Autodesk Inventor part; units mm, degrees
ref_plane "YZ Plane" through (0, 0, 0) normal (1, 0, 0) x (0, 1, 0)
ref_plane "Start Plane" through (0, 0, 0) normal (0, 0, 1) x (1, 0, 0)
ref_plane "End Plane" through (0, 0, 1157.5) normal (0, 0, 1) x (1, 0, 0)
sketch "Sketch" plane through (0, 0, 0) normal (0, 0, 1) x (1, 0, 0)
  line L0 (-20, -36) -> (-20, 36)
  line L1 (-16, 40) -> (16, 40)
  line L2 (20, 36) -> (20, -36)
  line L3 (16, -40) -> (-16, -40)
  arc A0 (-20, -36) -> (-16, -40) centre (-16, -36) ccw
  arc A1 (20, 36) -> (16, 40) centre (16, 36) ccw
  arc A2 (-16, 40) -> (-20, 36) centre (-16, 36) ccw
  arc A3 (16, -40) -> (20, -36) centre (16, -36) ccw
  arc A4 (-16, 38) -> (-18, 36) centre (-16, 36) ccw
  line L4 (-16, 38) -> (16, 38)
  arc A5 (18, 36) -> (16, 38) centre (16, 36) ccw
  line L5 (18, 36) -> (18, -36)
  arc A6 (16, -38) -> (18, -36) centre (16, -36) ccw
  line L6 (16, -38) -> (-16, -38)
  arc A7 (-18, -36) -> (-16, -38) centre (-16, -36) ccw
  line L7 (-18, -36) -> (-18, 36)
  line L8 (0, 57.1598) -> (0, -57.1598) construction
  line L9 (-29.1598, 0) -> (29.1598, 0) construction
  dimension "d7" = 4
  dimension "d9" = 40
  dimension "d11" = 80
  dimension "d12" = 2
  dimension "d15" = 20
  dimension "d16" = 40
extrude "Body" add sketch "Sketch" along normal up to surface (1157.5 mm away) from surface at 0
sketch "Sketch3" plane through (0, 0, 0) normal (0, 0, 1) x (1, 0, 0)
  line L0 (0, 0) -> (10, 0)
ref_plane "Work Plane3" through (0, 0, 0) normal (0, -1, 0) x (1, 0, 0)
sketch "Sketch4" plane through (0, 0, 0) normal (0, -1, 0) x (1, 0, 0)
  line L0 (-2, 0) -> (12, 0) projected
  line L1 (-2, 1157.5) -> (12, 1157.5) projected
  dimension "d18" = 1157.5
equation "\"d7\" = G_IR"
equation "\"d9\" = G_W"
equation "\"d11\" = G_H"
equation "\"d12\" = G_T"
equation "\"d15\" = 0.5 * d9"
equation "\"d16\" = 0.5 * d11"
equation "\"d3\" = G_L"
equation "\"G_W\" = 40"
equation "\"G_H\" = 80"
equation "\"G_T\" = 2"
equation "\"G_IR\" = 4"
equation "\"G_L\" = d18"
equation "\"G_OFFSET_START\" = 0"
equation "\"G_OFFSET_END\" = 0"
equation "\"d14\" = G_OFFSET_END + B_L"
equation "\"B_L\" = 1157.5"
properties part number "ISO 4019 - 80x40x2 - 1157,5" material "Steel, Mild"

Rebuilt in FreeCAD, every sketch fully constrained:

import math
import FreeCAD as App
import Part
import Sketcher
from FreeCAD import Vector
Q = App.Units.Quantity

doc = App.newDocument("Part")
params = doc.addObject("Spreadsheet::Sheet", "Params")
for row, (alias, value) in enumerate([
    ("sketch1_radius", "4 mm"),
    ("sketch1_radius2", "2 mm"),
    ("pad1_length", "1157.5 mm"),
], start=1):
    params.set(f"A{row}", alias)
    params.set(f"B{row}", "=" + value)
    params.setAlias(f"B{row}", alias)

body = doc.addObject("PartDesign::Body", "Body")

sketch1 = body.newObject("Sketcher::SketchObject", "Sketch")
sketch1.AttachmentSupport = (doc.getObject("XY_Plane"), [""])
sketch1.MapMode = "FlatFace"
sketch1.addGeometry([
    Part.LineSegment(Vector(-20, 36, 0), Vector(-20, -36, 0)),
    Part.ArcOfCircle(Part.Circle(Vector(-16, -36, 0), Vector(0, 0, 1), 4), math.radians(180), math.radians(270)),
    Part.LineSegment(Vector(-16, -40, 0), Vector(16, -40, 0)),
    Part.ArcOfCircle(Part.Circle(Vector(16, -36, 0), Vector(0, 0, 1), 4), math.radians(-90), math.radians(0)),
    Part.LineSegment(Vector(20, -36, 0), Vector(20, 36, 0)),
    Part.ArcOfCircle(Part.Circle(Vector(16, 36, 0), Vector(0, 0, 1), 4), math.radians(0), math.radians(90)),
    Part.LineSegment(Vector(16, 40, 0), Vector(-16, 40, 0)),
    Part.ArcOfCircle(Part.Circle(Vector(-16, 36, 0), Vector(0, 0, 1), 4), math.radians(90), math.radians(180)),
    Part.ArcOfCircle(Part.Circle(Vector(-16, 36, 0), Vector(0, 0, 1), 2), math.radians(90), math.radians(180)),
    Part.LineSegment(Vector(-16, 38, 0), Vector(16, 38, 0)),
    Part.ArcOfCircle(Part.Circle(Vector(16, 36, 0), Vector(0, 0, 1), 2), math.radians(0), math.radians(90)),
    Part.LineSegment(Vector(18, 36, 0), Vector(18, -36, 0)),
    Part.ArcOfCircle(Part.Circle(Vector(16, -36, 0), Vector(0, 0, 1), 2), math.radians(-90), math.radians(0)),
    Part.LineSegment(Vector(16, -38, 0), Vector(-16, -38, 0)),
    Part.ArcOfCircle(Part.Circle(Vector(-16, -36, 0), Vector(0, 0, 1), 2), math.radians(180), math.radians(270)),
    Part.LineSegment(Vector(-18, -36, 0), Vector(-18, 36, 0)),
], False)
sketch1.addConstraint([
    Sketcher.Constraint("Tangent", 0, 2, 1, 1),
    Sketcher.Constraint("Tangent", 1, 2, 2, 1),
    Sketcher.Constraint("Tangent", 2, 2, 3, 1),
    Sketcher.Constraint("Tangent", 3, 2, 4, 1),
    Sketcher.Constraint("Tangent", 4, 2, 5, 1),
    Sketcher.Constraint("Tangent", 5, 2, 6, 1),
    Sketcher.Constraint("Tangent", 6, 2, 7, 1),
    Sketcher.Constraint("Tangent", 7, 2, 0, 1),
    Sketcher.Constraint("Tangent", 8, 1, 9, 1),
    Sketcher.Constraint("Tangent", 9, 2, 10, 2),
    Sketcher.Constraint("Tangent", 10, 1, 11, 1),
    Sketcher.Constraint("Tangent", 11, 2, 12, 2),
    Sketcher.Constraint("Tangent", 12, 1, 13, 1),
    Sketcher.Constraint("Tangent", 13, 2, 14, 2),
    Sketcher.Constraint("Tangent", 14, 1, 15, 1),
    Sketcher.Constraint("Tangent", 15, 2, 8, 2),
    Sketcher.Constraint("Vertical", 0),
    Sketcher.Constraint("Horizontal", 2),
    Sketcher.Constraint("Vertical", 4),
    Sketcher.Constraint("Horizontal", 6),
    Sketcher.Constraint("Horizontal", 9),
    Sketcher.Constraint("Vertical", 11),
    Sketcher.Constraint("Horizontal", 13),
    Sketcher.Constraint("Vertical", 15),
    Sketcher.Constraint("Coincident", 8, 3, 7, 3),
    Sketcher.Constraint("Coincident", 10, 3, 5, 3),
    Sketcher.Constraint("Coincident", 12, 3, 3, 3),
    Sketcher.Constraint("Equal", 1, 3),
    Sketcher.Constraint("Equal", 3, 5),
    Sketcher.Constraint("Equal", 5, 7),
    Sketcher.Constraint("Equal", 12, 14),
    Sketcher.Constraint("Symmetric", 1, 3, 5, 3, -1, 1),
    Sketcher.Constraint("Radius", 1, Q("4 mm")),
    Sketcher.Constraint("Radius", 8, Q("2 mm")),
    Sketcher.Constraint("DistanceX", 0, 2, -1, 1, Q("20 mm")),
    Sketcher.Constraint("DistanceY", 1, 2, -1, 1, Q("40 mm")),
])
sketch1.setExpression("Constraints[32]", "Params.sketch1_radius")
sketch1.setExpression("Constraints[33]", "Params.sketch1_radius2")
pad1 = body.newObject("PartDesign::Pad", "Pad")
pad1.Profile = sketch1
pad1.setExpression("Length", "Params.pad1_length")

doc.recompute()
